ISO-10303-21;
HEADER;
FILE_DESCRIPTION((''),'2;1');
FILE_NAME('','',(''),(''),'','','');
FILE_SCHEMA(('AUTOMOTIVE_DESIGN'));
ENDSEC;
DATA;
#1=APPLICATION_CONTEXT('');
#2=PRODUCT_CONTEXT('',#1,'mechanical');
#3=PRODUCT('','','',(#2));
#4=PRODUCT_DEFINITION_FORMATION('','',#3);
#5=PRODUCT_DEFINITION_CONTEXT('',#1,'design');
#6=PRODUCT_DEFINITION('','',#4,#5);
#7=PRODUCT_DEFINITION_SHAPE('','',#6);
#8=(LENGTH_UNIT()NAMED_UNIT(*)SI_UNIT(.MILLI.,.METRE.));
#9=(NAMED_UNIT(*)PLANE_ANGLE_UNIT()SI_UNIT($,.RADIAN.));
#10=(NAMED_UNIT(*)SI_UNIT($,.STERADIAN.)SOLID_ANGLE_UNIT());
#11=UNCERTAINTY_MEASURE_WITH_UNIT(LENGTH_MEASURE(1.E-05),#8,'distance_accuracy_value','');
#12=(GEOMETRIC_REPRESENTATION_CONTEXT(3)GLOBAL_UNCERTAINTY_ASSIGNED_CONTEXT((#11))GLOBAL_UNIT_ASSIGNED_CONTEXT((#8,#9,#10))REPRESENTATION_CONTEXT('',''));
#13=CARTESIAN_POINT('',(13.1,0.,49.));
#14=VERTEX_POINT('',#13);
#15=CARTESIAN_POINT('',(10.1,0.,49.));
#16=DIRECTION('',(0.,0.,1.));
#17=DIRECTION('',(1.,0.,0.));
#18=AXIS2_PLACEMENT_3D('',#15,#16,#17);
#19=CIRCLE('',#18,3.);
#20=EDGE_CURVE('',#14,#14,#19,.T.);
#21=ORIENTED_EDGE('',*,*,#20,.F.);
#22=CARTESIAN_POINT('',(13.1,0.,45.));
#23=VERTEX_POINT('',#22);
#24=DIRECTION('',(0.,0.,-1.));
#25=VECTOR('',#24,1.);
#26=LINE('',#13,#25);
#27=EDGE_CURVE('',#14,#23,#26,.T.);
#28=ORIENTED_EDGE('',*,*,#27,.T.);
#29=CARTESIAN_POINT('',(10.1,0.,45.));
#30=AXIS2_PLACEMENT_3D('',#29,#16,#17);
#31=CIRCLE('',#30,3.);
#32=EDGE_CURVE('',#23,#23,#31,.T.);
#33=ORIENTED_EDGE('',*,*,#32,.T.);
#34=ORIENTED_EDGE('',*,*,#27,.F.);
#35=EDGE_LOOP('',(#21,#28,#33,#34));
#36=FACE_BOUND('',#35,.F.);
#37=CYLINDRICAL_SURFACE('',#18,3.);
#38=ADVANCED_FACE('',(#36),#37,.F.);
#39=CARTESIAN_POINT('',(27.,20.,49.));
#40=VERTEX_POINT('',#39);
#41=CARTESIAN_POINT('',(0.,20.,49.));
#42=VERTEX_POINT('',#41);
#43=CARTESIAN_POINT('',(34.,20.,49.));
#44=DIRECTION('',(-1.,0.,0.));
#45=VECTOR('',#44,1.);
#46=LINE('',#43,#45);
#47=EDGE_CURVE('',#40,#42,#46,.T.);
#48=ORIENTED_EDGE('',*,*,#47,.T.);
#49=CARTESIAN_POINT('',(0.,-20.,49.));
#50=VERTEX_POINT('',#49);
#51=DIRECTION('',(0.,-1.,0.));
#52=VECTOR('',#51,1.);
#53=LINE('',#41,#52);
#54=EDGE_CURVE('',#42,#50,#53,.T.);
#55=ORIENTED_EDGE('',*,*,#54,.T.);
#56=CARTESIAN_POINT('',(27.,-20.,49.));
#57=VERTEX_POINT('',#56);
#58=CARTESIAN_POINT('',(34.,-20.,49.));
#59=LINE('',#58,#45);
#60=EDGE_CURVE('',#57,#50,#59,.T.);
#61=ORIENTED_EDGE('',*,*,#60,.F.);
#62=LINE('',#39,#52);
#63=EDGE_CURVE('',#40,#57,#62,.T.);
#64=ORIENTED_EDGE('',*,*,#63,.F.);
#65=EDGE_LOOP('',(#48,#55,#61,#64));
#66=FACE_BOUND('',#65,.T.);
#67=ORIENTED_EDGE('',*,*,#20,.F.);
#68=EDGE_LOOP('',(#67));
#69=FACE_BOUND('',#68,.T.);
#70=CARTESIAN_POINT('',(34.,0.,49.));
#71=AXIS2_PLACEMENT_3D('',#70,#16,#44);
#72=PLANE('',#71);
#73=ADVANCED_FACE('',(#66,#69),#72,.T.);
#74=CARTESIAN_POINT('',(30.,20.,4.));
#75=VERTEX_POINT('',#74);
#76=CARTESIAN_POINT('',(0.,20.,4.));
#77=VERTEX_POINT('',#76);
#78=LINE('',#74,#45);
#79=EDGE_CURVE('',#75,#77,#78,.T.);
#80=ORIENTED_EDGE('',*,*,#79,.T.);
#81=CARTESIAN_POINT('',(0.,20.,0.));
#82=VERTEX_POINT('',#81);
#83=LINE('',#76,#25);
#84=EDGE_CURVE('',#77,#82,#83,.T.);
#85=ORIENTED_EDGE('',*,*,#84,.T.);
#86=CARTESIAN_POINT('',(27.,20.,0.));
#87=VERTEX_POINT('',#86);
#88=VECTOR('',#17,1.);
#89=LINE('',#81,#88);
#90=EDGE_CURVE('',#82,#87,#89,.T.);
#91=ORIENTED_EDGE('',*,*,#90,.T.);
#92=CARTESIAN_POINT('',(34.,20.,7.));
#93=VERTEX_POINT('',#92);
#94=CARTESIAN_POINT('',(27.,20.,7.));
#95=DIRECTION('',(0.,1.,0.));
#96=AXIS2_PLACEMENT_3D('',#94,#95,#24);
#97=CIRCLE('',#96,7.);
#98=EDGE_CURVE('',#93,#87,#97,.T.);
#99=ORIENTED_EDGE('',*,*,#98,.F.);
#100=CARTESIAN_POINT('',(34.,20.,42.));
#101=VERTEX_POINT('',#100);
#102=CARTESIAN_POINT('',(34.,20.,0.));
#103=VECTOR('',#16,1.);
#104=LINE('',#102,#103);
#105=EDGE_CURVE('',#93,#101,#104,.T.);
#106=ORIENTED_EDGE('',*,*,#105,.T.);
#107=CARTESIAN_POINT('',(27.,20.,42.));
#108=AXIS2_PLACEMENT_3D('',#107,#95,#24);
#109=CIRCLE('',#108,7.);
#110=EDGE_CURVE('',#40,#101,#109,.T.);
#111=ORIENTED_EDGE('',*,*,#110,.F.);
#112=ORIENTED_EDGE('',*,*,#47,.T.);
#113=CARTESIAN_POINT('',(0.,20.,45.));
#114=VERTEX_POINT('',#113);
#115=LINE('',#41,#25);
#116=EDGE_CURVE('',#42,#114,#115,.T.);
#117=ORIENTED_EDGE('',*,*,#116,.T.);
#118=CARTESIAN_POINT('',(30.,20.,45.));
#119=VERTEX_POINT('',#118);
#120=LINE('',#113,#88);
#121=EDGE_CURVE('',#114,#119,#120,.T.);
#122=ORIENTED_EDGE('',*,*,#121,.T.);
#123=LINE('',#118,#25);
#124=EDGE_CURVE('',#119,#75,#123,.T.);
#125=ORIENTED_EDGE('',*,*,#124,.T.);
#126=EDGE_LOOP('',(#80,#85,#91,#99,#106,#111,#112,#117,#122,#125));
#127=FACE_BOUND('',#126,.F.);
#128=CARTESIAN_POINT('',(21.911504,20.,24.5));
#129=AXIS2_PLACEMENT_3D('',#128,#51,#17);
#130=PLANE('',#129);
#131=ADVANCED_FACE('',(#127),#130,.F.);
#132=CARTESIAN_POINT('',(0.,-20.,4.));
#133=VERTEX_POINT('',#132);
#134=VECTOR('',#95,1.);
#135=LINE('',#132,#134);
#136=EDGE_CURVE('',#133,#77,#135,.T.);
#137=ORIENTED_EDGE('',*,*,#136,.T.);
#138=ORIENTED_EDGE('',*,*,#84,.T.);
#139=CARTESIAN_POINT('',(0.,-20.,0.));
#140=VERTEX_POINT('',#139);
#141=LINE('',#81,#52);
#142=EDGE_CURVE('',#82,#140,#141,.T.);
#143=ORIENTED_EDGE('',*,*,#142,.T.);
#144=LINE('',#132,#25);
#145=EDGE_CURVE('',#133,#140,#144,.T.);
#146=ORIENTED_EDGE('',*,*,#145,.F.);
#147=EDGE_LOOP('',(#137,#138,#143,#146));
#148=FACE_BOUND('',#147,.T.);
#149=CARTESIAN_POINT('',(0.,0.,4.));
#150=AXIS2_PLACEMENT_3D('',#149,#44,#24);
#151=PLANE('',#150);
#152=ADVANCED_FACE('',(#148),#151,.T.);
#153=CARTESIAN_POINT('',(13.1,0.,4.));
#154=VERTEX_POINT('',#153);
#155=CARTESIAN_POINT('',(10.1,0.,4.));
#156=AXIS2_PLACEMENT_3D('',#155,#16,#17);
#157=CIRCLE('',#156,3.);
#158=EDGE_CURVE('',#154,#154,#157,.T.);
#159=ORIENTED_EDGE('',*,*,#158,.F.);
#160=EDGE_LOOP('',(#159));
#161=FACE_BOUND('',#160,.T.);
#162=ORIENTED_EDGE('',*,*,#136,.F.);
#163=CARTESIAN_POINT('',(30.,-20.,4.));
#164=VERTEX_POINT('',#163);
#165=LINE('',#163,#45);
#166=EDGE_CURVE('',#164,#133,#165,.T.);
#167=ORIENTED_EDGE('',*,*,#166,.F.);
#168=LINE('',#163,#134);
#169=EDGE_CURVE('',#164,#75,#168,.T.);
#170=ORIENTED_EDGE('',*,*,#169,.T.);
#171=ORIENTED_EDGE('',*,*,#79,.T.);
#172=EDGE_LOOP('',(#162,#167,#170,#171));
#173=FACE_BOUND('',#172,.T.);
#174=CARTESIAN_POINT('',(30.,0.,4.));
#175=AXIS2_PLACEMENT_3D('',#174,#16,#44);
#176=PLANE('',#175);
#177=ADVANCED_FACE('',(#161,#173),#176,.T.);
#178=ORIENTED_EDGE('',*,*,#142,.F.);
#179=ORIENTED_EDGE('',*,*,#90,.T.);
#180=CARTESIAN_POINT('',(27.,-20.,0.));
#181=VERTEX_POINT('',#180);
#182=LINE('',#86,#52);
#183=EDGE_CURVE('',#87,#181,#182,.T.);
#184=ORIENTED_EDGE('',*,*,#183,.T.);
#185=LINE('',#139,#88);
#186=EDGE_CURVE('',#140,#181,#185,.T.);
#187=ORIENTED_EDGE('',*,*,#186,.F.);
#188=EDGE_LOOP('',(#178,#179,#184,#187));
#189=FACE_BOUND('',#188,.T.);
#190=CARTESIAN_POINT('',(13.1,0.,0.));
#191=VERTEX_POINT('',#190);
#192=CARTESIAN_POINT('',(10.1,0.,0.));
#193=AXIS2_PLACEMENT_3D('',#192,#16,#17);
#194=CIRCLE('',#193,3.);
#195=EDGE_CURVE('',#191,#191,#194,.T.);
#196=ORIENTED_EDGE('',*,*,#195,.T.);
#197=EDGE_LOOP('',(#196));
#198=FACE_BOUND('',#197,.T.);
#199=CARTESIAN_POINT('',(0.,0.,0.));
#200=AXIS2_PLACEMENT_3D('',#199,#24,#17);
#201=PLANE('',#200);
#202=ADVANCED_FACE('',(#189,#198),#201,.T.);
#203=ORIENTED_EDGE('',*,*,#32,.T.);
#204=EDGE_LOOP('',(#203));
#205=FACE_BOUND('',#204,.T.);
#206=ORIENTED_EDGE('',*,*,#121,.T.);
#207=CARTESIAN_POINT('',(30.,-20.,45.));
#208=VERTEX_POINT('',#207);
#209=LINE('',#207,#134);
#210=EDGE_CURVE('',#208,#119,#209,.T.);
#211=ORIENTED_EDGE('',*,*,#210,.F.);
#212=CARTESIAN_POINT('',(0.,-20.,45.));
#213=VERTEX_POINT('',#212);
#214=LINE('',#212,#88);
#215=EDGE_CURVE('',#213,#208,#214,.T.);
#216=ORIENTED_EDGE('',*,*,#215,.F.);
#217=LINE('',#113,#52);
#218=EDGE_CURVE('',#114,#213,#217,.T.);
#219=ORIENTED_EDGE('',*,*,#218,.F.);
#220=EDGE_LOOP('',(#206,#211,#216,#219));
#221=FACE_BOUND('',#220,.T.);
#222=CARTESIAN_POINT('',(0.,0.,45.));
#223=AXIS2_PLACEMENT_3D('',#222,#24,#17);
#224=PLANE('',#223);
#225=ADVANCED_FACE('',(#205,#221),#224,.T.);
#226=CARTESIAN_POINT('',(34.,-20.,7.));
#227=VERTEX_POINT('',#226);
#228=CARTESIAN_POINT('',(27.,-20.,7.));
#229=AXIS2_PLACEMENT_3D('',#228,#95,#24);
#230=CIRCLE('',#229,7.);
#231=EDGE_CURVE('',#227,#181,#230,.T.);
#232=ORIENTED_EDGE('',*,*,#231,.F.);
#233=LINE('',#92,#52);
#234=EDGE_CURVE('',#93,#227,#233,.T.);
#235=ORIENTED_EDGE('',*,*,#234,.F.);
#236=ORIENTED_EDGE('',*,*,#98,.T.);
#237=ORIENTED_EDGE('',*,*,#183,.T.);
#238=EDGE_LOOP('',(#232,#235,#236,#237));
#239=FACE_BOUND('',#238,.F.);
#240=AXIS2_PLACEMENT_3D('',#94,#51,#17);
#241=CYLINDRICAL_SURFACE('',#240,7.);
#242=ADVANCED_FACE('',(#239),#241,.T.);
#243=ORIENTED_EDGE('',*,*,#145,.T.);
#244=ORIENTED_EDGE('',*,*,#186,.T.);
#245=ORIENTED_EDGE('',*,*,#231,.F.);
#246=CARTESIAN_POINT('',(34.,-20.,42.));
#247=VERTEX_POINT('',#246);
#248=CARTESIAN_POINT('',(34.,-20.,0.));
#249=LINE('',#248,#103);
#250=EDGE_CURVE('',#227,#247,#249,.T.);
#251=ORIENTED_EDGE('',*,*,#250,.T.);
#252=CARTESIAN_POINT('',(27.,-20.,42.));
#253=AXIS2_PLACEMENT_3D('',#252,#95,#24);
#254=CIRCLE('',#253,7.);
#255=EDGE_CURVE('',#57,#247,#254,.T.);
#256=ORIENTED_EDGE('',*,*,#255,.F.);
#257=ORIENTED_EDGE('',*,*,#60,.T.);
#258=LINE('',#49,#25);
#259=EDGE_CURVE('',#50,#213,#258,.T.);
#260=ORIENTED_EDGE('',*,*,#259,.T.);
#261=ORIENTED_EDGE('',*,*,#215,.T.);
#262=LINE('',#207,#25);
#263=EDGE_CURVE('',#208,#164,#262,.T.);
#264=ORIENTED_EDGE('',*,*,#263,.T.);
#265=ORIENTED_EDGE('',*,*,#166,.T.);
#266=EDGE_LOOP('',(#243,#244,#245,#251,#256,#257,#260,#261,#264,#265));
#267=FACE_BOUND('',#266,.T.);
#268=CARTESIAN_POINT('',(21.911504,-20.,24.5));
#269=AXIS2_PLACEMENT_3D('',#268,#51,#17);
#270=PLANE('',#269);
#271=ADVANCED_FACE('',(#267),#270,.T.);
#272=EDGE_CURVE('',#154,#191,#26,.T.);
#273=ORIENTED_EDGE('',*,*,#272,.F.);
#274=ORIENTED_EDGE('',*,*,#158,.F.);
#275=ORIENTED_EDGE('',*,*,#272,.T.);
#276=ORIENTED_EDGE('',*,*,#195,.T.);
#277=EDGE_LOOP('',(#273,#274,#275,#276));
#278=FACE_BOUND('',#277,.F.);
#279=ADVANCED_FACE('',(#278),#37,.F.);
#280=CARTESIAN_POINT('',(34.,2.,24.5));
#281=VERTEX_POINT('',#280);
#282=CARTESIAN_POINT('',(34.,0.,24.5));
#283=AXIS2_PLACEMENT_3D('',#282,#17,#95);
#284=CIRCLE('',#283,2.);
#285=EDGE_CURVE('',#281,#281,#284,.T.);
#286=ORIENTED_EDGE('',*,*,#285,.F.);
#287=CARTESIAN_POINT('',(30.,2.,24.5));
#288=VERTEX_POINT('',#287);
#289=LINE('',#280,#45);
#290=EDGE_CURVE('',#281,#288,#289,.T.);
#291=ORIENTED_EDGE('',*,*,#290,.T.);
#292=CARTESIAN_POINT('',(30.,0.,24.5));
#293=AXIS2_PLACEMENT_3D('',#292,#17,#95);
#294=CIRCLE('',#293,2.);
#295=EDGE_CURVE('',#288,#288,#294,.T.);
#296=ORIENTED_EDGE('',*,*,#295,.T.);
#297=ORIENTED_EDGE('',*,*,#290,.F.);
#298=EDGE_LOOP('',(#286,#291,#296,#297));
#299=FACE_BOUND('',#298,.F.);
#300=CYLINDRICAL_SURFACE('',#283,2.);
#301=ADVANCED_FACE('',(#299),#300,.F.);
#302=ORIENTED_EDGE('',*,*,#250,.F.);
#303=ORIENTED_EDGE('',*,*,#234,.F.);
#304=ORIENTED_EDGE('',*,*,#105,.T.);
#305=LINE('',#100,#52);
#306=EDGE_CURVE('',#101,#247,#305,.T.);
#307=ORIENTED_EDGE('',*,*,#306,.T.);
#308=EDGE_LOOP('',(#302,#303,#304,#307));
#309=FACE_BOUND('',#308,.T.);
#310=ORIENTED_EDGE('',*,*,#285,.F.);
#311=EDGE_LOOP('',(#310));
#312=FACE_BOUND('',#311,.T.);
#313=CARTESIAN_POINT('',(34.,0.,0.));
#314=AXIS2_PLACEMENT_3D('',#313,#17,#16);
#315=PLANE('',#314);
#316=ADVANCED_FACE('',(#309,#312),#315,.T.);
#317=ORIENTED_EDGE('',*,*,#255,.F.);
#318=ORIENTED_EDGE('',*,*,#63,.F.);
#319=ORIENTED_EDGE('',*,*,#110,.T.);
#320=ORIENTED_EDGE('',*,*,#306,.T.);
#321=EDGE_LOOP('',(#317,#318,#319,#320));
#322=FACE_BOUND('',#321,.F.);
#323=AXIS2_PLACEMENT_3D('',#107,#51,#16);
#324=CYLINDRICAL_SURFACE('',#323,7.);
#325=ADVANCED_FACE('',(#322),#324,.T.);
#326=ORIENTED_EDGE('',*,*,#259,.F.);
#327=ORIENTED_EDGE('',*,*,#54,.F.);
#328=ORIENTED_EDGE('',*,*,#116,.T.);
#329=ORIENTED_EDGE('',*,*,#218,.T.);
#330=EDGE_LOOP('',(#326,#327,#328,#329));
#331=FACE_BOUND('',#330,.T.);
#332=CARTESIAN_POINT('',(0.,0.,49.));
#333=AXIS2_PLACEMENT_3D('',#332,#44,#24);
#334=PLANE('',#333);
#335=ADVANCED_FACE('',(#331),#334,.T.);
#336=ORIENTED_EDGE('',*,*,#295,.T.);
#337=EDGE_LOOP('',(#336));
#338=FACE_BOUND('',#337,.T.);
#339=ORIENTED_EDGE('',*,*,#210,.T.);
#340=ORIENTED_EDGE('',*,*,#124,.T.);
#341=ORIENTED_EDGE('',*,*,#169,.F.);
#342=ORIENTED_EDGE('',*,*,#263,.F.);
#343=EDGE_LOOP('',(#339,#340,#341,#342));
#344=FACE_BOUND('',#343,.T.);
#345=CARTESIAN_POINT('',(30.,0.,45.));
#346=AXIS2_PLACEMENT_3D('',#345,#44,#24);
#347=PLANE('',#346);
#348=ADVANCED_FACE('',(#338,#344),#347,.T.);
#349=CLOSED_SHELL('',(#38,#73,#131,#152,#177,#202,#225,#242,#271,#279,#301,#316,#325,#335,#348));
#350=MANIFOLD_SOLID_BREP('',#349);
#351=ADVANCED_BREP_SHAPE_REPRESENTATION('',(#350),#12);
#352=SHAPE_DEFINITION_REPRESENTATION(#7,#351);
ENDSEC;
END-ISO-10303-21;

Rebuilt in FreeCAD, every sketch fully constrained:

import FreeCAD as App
import Part
import Sketcher

V = App.Vector
Q = App.Units.Quantity


def edges_at(feature, points):
    """Names of the edges that pass closest to the given points."""
    edges = feature.Shape.Edges
    near = lambda p: min(range(len(edges)), key=lambda i: edges[i].distToShape(Part.Vertex(*p))[0])
    return sorted({f"Edge{near(p) + 1}" for p in points})


def add_polygon(sketch, points):
    """Adds a closed chain of lines whose ends are joined by coincident constraints."""
    first, n = sketch.GeometryCount, len(points)
    for a, b in zip(points, points[1:] + points[:1]):
        sketch.addGeometry(Part.LineSegment(App.Vector(*a, 0), App.Vector(*b, 0)), False)
    for i in range(n):
        sketch.addConstraint(Sketcher.Constraint("Coincident", first + i, 2, first + (i + 1) % n, 1))

doc = App.newDocument("Part")
params = doc.addObject("Spreadsheet::Sheet", "Params")
for row, (alias, value) in enumerate([
    ("sketch1_width", "34 mm"),
    ("sketch1_width2", "30 mm"),
    ("sketch1_height", "4 mm"),
    ("sketch1_height2", "49 mm"),
    ("pad1_length", "20 mm"),
    ("pad1_length2", "20 mm"),
    ("fillet_radius", "7 mm"),
    ("sketch2_diameter", "4 mm"),
    ("pocket1_length", "25 mm"),
    ("sketch3_diameter", "6 mm"),
    ("pocket2_length", "53 mm"),
], start=1):
    params.set(f"A{row}", alias)
    params.set(f"B{row}", "=" + value)
    params.setAlias(f"B{row}", alias)

body = doc.addObject("PartDesign::Body", "Body")

sketch1 = doc.addObject("Sketcher::SketchObject", "Sketch")
body.addObject(sketch1)
sketch1.AttachmentSupport = (doc.XZ_Plane, [""])
sketch1.MapMode = "FlatFace"
add_polygon(sketch1, [(0, 4), (0, 0), (34, 0), (34, 49), (0, 49), (0, 45), (30, 45), (30, 4)])
sketch1.addConstraint(Sketcher.Constraint("Vertical", 0))
sketch1.addConstraint(Sketcher.Constraint("Horizontal", 1))
sketch1.addConstraint(Sketcher.Constraint("Vertical", 2))
sketch1.addConstraint(Sketcher.Constraint("Horizontal", 3))
sketch1.addConstraint(Sketcher.Constraint("Vertical", 4))
sketch1.addConstraint(Sketcher.Constraint("Horizontal", 5))
sketch1.addConstraint(Sketcher.Constraint("Vertical", 6))
sketch1.addConstraint(Sketcher.Constraint("Horizontal", 7))
sketch1.addConstraint(Sketcher.Constraint("Coincident", 0, 2, -1, 1))
sketch1.addConstraint(Sketcher.Constraint("PointOnObject", 3, 2, -2))
sketch1.addConstraint(Sketcher.Constraint("Equal", 0, 4))
sketch1.addConstraint(Sketcher.Constraint("DistanceX", 1, 1, 1, 2, Q("34 mm")))
sketch1.addConstraint(Sketcher.Constraint("DistanceX", 5, 1, 5, 2, Q("30 mm")))
sketch1.addConstraint(Sketcher.Constraint("DistanceY", 0, 2, 0, 1, Q("4 mm")))
sketch1.addConstraint(Sketcher.Constraint("DistanceY", 2, 1, 2, 2, Q("49 mm")))
sketch1.setExpression("Constraints[19]", "Params.sketch1_width")
sketch1.setExpression("Constraints[20]", "Params.sketch1_width2")
sketch1.setExpression("Constraints[21]", "Params.sketch1_height")
sketch1.setExpression("Constraints[22]", "Params.sketch1_height2")
pad1 = doc.addObject("PartDesign::Pad", "Pad")
body.addObject(pad1)
pad1.Profile = sketch1
pad1.Type = "TwoLengths"
pad1.setExpression("Length", "Params.pad1_length")
pad1.setExpression("Length2", "Params.pad1_length2")
doc.recompute()

fillet = doc.addObject("PartDesign::Fillet", "Fillet")
body.addObject(fillet)
fillet.Base = (pad1, edges_at(pad1, [(34, 0, 49), (34, 0, 0)]))
fillet.setExpression("Radius", "Params.fillet_radius")

sketch2 = doc.addObject("Sketcher::SketchObject", "Sketch001")
body.addObject(sketch2)
sketch2.AttachmentSupport = (doc.YZ_Plane, [""])
sketch2.MapMode = "FlatFace"
sketch2.AttachmentOffset = App.Placement(V(0, 0, 34), App.Rotation())
sketch2.addGeometry(Part.Circle(V(0, 24.5, 0), V(0, 0, 1), 2), False)
sketch2.addConstraint(Sketcher.Constraint("PointOnObject", 0, 3, -2))
sketch2.addConstraint(Sketcher.Constraint("Diameter", 0, Q("4 mm")))
sketch2.addConstraint(Sketcher.Constraint("DistanceY", -1, 1, 0, 3, Q("24.5 mm")))
sketch2.setExpression("Constraints[1]", "Params.sketch2_diameter")
pocket1 = doc.addObject("PartDesign::Pocket", "Pocket")
body.addObject(pocket1)
pocket1.Profile = sketch2
pocket1.setExpression("Length", "Params.pocket1_length")

sketch3 = doc.addObject("Sketcher::SketchObject", "Sketch002")
body.addObject(sketch3)
sketch3.AttachmentSupport = (doc.XY_Plane, [""])
sketch3.MapMode = "FlatFace"
sketch3.AttachmentOffset = App.Placement(V(0, 0, 49), App.Rotation())
sketch3.addGeometry(Part.Circle(V(10.1, 0, 0), V(0, 0, 1), 3), False)
sketch3.addConstraint(Sketcher.Constraint("PointOnObject", 0, 3, -1))
sketch3.addConstraint(Sketcher.Constraint("Diameter", 0, Q("6 mm")))
sketch3.addConstraint(Sketcher.Constraint("DistanceX", -1, 1, 0, 3, Q("10.1 mm")))
sketch3.setExpression("Constraints[1]", "Params.sketch3_diameter")
pocket2 = doc.addObject("PartDesign::Pocket", "Pocket001")
body.addObject(pocket2)
pocket2.Profile = sketch3
pocket2.setExpression("Length", "Params.pocket2_length")

doc.recompute()
